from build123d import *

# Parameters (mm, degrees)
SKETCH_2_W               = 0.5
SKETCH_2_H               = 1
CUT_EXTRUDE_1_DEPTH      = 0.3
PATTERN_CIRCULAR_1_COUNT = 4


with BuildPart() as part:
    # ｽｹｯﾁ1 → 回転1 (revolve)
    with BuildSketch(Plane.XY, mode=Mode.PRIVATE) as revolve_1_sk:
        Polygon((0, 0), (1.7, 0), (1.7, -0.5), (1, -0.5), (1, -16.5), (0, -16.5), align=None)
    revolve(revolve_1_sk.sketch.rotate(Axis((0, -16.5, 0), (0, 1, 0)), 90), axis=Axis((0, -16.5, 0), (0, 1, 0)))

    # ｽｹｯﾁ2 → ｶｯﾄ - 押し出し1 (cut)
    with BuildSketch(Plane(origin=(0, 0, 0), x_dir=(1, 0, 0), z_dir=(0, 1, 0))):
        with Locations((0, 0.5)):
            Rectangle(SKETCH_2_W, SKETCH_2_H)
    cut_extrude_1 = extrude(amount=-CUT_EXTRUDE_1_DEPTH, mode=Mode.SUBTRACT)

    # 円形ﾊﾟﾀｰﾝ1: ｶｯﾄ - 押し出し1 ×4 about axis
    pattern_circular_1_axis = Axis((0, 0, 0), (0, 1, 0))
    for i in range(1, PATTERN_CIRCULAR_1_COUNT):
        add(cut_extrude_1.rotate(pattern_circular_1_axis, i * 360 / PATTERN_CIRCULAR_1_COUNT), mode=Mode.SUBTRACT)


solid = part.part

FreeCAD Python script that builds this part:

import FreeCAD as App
import Part
import Sketcher
Q = App.Units.Quantity


def add_polygon(sketch, points):
    """Adds a closed chain of lines whose ends are joined by coincident constraints."""
    first, n = sketch.GeometryCount, len(points)
    for a, b in zip(points, points[1:] + points[:1]):
        sketch.addGeometry(Part.LineSegment(App.Vector(*a, 0), App.Vector(*b, 0)), False)
    for i in range(n):
        sketch.addConstraint(Sketcher.Constraint("Coincident", first + i, 2, first + (i + 1) % n, 1))

doc = App.newDocument("Part")
body = doc.addObject("PartDesign::Body", "Body")

sketch1 = body.newObject("Sketcher::SketchObject", "Sketch")
sketch1.AttachmentSupport = (doc.getObject("XY_Plane"), [""])
sketch1.MapMode = "FlatFace"
add_polygon(sketch1, [(1.7, 0), (0, 0), (0, -16.5), (1, -16.5), (1, -0.5), (1.7, -0.5)])
sketch1.addConstraint(Sketcher.Constraint("Horizontal", 0))
sketch1.addConstraint(Sketcher.Constraint("Vertical", 1))
sketch1.addConstraint(Sketcher.Constraint("Horizontal", 2))
sketch1.addConstraint(Sketcher.Constraint("Vertical", 3))
sketch1.addConstraint(Sketcher.Constraint("Horizontal", 4))
sketch1.addConstraint(Sketcher.Constraint("Vertical", 5))
sketch1.addConstraint(Sketcher.Constraint("Coincident", 0, 2, -1, 1))
sketch1.addConstraint(Sketcher.Constraint("DistanceX", 2, 1, 2, 2, Q("1 mm")))
sketch1.addConstraint(Sketcher.Constraint("DistanceY", 3, 1, 3, 2, Q("16 mm")))
sketch1.addConstraint(Sketcher.Constraint("DistanceX", 0, 2, 0, 1, Q("1.7 mm")))
sketch1.addConstraint(Sketcher.Constraint("DistanceY", 1, 2, 1, 1, Q("16.5 mm")))
revolution = body.newObject("PartDesign::Revolution", "Revolution")
revolution.Profile = sketch1
revolution.ReferenceAxis = (sketch1, ["V_Axis"])
revolution.Angle = 360

sketch2 = body.newObject("Sketcher::SketchObject", "Sketch001")
sketch2.AttachmentSupport = (doc.getObject("XZ_Plane"), [""])
sketch2.MapMode = "FlatFace"
add_polygon(sketch2, [(-0.2, -1), (-0.2, 0), (0.2, 0), (0.2, -1)])
sketch2.addConstraint(Sketcher.Constraint("Vertical", 0))
sketch2.addConstraint(Sketcher.Constraint("Horizontal", 1))
sketch2.addConstraint(Sketcher.Constraint("Vertical", 2))
sketch2.addConstraint(Sketcher.Constraint("Horizontal", 3))
sketch2.addConstraint(Sketcher.Constraint("Symmetric", 0, 2, 1, 2, -1, 1))
sketch2.addConstraint(Sketcher.Constraint("DistanceY", 0, 1, 0, 2, Q("1 mm")))
sketch2.addConstraint(Sketcher.Constraint("DistanceX", 1, 1, 1, 2, Q("0.5 mm")))
pocket1 = body.newObject("PartDesign::Pocket", "Pocket")
pocket1.Profile = sketch2
pocket1.Length = 0.3
pocket1.Reversed = True
doc.recompute()

polarpattern = body.newObject("PartDesign::PolarPattern", "PolarPattern")
polarpattern.Originals = [pocket1]
polarpattern.Axis = (doc.getObject("Y_Axis"), [""])
polarpattern.Angle = 360
polarpattern.Occurrences = 4
body.Tip = polarpattern

doc.recompute()
